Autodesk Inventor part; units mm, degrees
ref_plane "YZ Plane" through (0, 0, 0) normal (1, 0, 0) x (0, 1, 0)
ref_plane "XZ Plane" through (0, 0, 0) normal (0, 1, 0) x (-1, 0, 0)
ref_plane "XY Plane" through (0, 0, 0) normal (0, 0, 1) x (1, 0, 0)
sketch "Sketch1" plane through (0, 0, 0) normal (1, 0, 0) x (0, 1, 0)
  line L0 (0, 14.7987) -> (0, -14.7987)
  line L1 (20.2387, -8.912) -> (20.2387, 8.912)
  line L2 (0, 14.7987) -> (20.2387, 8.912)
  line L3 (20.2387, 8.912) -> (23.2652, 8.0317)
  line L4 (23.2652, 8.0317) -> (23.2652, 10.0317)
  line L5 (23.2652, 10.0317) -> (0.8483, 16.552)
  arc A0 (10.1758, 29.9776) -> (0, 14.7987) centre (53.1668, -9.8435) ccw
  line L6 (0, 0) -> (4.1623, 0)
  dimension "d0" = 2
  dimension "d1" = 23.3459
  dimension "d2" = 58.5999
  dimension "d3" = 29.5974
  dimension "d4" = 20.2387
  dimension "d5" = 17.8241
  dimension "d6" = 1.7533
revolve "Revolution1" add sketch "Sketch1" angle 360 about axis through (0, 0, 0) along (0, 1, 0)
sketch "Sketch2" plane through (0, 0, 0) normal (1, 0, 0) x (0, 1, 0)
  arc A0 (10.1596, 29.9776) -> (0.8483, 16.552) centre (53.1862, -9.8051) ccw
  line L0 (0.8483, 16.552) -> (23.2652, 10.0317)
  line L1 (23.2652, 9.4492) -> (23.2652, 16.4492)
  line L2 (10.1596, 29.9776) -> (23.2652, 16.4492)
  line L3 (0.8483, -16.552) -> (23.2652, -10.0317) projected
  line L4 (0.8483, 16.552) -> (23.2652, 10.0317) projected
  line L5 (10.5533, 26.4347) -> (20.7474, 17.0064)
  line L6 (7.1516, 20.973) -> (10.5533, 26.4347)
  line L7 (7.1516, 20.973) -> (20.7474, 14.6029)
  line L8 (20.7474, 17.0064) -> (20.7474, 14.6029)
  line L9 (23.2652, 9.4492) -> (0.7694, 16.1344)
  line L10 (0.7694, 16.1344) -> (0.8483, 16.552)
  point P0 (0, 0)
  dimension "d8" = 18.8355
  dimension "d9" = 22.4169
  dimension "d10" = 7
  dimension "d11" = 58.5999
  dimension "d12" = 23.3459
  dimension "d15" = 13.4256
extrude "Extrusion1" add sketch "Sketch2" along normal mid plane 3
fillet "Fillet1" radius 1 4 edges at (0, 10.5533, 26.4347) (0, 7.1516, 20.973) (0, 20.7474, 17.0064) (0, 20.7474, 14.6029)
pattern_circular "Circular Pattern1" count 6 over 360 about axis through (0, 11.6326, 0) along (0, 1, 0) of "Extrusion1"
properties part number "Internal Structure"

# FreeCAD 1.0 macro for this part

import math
import FreeCAD as App
import Part
import Sketcher
from FreeCAD import Vector
Q = App.Units.Quantity


def edges_at(feature, points):
    """Names of the edges that pass closest to the given points."""
    edges = feature.Shape.Edges
    near = lambda p: min(range(len(edges)), key=lambda i: edges[i].distToShape(Part.Vertex(*p))[0])
    return sorted({f"Edge{near(p) + 1}" for p in points})


def add_polygon(sketch, points):
    """Adds a closed chain of lines whose ends are joined by coincident constraints."""
    first, n = sketch.GeometryCount, len(points)
    for a, b in zip(points, points[1:] + points[:1]):
        sketch.addGeometry(Part.LineSegment(App.Vector(*a, 0), App.Vector(*b, 0)), False)
    for i in range(n):
        sketch.addConstraint(Sketcher.Constraint("Coincident", first + i, 2, first + (i + 1) % n, 1))

doc = App.newDocument("Part")
params = doc.addObject("Spreadsheet::Sheet", "Params")
for row, (alias, value) in enumerate([
    ("sketch1_radius", "58.6 mm"),
    ("sketch1_height", "2 mm"),
    ("revolution_angle", "360 deg"),
    ("sketch2_radius", "58.6 mm"),
    ("sketch2_height", "7 mm"),
    ("pad1_length", "3 mm"),
    ("fillet_radius", "1 mm"),
], start=1):
    params.set(f"A{row}", alias)
    params.set(f"B{row}", "=" + value)
    params.setAlias(f"B{row}", alias)

body = doc.addObject("PartDesign::Body", "Body")

sketch1 = body.newObject("Sketcher::SketchObject", "Sketch")
sketch1.AttachmentSupport = (doc.getObject("YZ_Plane"), [""])
sketch1.MapMode = "FlatFace"
sketch1.addGeometry(Part.ArcOfCircle(Part.Circle(Vector(53.2, -9.8, 0), Vector(0, 0, 1), 58.6), math.radians(153.23), math.radians(155.13)), False)
sketch1.addGeometry(Part.LineSegment(Vector(0, 14.8, 0), Vector(20.2, 8.9, 0)), False)
sketch1.addGeometry(Part.LineSegment(Vector(20.2, 8.9, 0), Vector(23.3, 8, 0)), False)
sketch1.addGeometry(Part.LineSegment(Vector(23.3, 8, 0), Vector(23.3, 10, 0)), False)
sketch1.addGeometry(Part.LineSegment(Vector(23.3, 10, 0), Vector(0.8, 16.6, 0)), False)
sketch1.addConstraint(Sketcher.Constraint("Coincident", 0, 2, 1, 1))
sketch1.addConstraint(Sketcher.Constraint("Coincident", 1, 2, 2, 1))
sketch1.addConstraint(Sketcher.Constraint("Coincident", 2, 2, 3, 1))
sketch1.addConstraint(Sketcher.Constraint("Coincident", 3, 2, 4, 1))
sketch1.addConstraint(Sketcher.Constraint("Coincident", 4, 2, 0, 1))
sketch1.addConstraint(Sketcher.Constraint("Vertical", 3))
sketch1.addConstraint(Sketcher.Constraint("PointOnObject", 0, 2, -2))
sketch1.addConstraint(Sketcher.Constraint("Parallel", 1, 2))
sketch1.addConstraint(Sketcher.Constraint("Parallel", 2, 4))
sketch1.addConstraint(Sketcher.Constraint("Radius", 0, Q("58.6 mm")))
sketch1.addConstraint(Sketcher.Constraint("DistanceY", 3, 1, 3, 2, Q("2 mm")))
sketch1.addConstraint(Sketcher.Constraint("Distance", 4, Q("23.346 mm")))
sketch1.addConstraint(Sketcher.Constraint("DistanceX", -1, 1, 1, 2, Q("20.2387 mm")))
sketch1.addConstraint(Sketcher.Constraint("DistanceY", 1, 2, 4, 2, Q("7.64 mm")))
sketch1.addConstraint(Sketcher.Constraint("Distance", 2, Q("3.152 mm")))
sketch1.addConstraint(Sketcher.Constraint("DistanceY", -1, 1, 1, 2, Q("8.912 mm")))
sketch1.setExpression("Constraints[9]", "Params.sketch1_radius")
sketch1.setExpression("Constraints[10]", "Params.sketch1_height")
revolution = body.newObject("PartDesign::Revolution", "Revolution")
revolution.Profile = sketch1
revolution.ReferenceAxis = (sketch1, ["H_Axis"])
revolution.setExpression("Angle", "Params.revolution_angle")

sketch2 = body.newObject("Sketcher::SketchObject", "Sketch001")
sketch2.AttachmentSupport = (doc.getObject("YZ_Plane"), [""])
sketch2.MapMode = "FlatFace"
sketch2.addGeometry(Part.LineSegment(Vector(23.27, 16.45, 0), Vector(10.16, 29.98, 0)), False)
sketch2.addGeometry(Part.ArcOfCircle(Part.Circle(Vector(53.19, -9.81, 0), Vector(0, 0, 1), 58.6), math.radians(137.24), math.radians(153.27)), False)
sketch2.addGeometry(Part.LineSegment(Vector(0.85, 16.55, 0), Vector(0.77, 16.13, 0)), False)
sketch2.addGeometry(Part.LineSegment(Vector(0.77, 16.13, 0), Vector(23.27, 9.45, 0)), False)
sketch2.addGeometry(Part.LineSegment(Vector(23.27, 9.45, 0), Vector(23.27, 16.45, 0)), False)
add_polygon(sketch2, [(7.15, 20.97), (10.55, 26.43), (20.75, 17.01), (20.75, 14.6)])
sketch2.addConstraint(Sketcher.Constraint("Coincident", 0, 2, 1, 1))
sketch2.addConstraint(Sketcher.Constraint("Coincident", 1, 2, 2, 1))
sketch2.addConstraint(Sketcher.Constraint("Coincident", 2, 2, 3, 1))
sketch2.addConstraint(Sketcher.Constraint("Coincident", 3, 2, 4, 1))
sketch2.addConstraint(Sketcher.Constraint("Coincident", 4, 2, 0, 1))
sketch2.addConstraint(Sketcher.Constraint("Vertical", 4))
sketch2.addConstraint(Sketcher.Constraint("Vertical", 7))
sketch2.addConstraint(Sketcher.Constraint("Radius", 1, Q("58.6 mm")))
sketch2.addConstraint(Sketcher.Constraint("DistanceY", 4, 1, 4, 2, Q("7 mm")))
sketch2.addConstraint(Sketcher.Constraint("Angle", 2, Q("-100.6992 deg")))
sketch2.addConstraint(Sketcher.Constraint("DistanceX", 1, 2, 3, 2, Q("22.417 mm")))
sketch2.addConstraint(Sketcher.Constraint("Distance", 0, Q("18.8355 mm")))
sketch2.addConstraint(Sketcher.Constraint("Angle", 0, Q("134.0905 deg")))
sketch2.addConstraint(Sketcher.Constraint("Angle", 3, Q("-16.5507 deg")))
sketch2.addConstraint(Sketcher.Constraint("DistanceY", 1, 2, 0, 2, Q("13.4256 mm")))
sketch2.addConstraint(Sketcher.Constraint("DistanceY", 7, 2, 7, 1, Q("2.4035 mm")))
sketch2.addConstraint(Sketcher.Constraint("DistanceY", 1, 3, -1, 1, Q("9.805 mm")))
sketch2.addConstraint(Sketcher.Constraint("DistanceY", -1, 1, 7, 2, Q("14.603 mm")))
sketch2.addConstraint(Sketcher.Constraint("DistanceY", -1, 1, 8, 2, Q("20.973 mm")))
sketch2.addConstraint(Sketcher.Constraint("DistanceY", 5, 2, 0, 2, Q("3.543 mm")))
sketch2.addConstraint(Sketcher.Constraint("DistanceX", 1, 2, 5, 2, Q("9.705 mm")))
sketch2.addConstraint(Sketcher.Constraint("DistanceX", 5, 2, 6, 2, Q("10.194 mm")))
sketch2.addConstraint(Sketcher.Constraint("DistanceX", 8, 2, 0, 2, Q("3.008 mm")))
sketch2.addConstraint(Sketcher.Constraint("DistanceX", -1, 1, 1, 3, Q("53.1862 mm")))
sketch2.setExpression("Constraints[11]", "Params.sketch2_radius")
sketch2.setExpression("Constraints[12]", "Params.sketch2_height")
pad1 = body.newObject("PartDesign::Pad", "Pad")
pad1.Profile = sketch2
pad1.setExpression("Length", "Params.pad1_length")
pad1.Midplane = True
doc.recompute()

fillet = body.newObject("PartDesign::Fillet", "Fillet")
fillet.Base = (pad1, edges_at(pad1, [
    (0, 10.553, 26.435),
    (0, 7.152, 20.973),
    (0, 20.747, 17.006),
    (0, 20.747, 14.603),
]))
fillet.setExpression("Radius", "Params.fillet_radius")
doc.recompute()

polarpattern = body.newObject("PartDesign::PolarPattern", "PolarPattern")
polarpattern.Originals = [pad1]
polarpattern.Axis = (doc.getObject("Y_Axis"), [""])
polarpattern.Angle = 360
polarpattern.Occurrences = 6
body.Tip = polarpattern

doc.recompute()
